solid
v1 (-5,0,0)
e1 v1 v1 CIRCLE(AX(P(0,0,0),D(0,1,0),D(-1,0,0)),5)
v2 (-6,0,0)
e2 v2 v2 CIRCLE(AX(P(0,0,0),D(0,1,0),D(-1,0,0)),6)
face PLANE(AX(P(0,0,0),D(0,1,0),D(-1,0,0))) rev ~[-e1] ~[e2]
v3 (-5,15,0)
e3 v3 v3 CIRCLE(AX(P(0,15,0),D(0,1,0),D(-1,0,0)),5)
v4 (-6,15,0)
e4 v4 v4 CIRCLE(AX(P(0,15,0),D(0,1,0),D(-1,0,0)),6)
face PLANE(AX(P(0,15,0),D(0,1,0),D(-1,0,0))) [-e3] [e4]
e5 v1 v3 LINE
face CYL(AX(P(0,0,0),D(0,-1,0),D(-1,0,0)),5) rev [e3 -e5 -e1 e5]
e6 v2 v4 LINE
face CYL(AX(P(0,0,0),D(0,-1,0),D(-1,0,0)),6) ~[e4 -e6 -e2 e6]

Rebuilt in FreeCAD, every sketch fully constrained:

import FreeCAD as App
import Part
import Sketcher
from FreeCAD import Vector
Q = App.Units.Quantity

doc = App.newDocument("Part")
body = doc.addObject("PartDesign::Body", "Body")

# Sketch on XZ plane
sketch1 = doc.addObject("Sketcher::SketchObject", "Sketch")
body.addObject(sketch1)
sketch1.AttachmentSupport = (doc.XZ_Plane, [""])
sketch1.MapMode = "FlatFace"
sketch1.addGeometry([
    Part.Circle(Vector(0, 0, 0), Vector(0, 0, 1), 6),
    Part.Circle(Vector(0, 0, 0), Vector(0, 0, 1), 5),
], False)
sketch1.addConstraint([
    Sketcher.Constraint("Coincident", 0, 3, -1, 1),
    Sketcher.Constraint("Coincident", 1, 3, -1, 1),
    Sketcher.Constraint("Diameter", 1, Q("10 mm")),
    Sketcher.Constraint("Diameter", 0, Q("12 mm")),
])
pad1 = doc.addObject("PartDesign::Pad", "Pad")
body.addObject(pad1)
pad1.Profile = sketch1
pad1.Length = 15
pad1.Reversed = True

doc.recompute()
